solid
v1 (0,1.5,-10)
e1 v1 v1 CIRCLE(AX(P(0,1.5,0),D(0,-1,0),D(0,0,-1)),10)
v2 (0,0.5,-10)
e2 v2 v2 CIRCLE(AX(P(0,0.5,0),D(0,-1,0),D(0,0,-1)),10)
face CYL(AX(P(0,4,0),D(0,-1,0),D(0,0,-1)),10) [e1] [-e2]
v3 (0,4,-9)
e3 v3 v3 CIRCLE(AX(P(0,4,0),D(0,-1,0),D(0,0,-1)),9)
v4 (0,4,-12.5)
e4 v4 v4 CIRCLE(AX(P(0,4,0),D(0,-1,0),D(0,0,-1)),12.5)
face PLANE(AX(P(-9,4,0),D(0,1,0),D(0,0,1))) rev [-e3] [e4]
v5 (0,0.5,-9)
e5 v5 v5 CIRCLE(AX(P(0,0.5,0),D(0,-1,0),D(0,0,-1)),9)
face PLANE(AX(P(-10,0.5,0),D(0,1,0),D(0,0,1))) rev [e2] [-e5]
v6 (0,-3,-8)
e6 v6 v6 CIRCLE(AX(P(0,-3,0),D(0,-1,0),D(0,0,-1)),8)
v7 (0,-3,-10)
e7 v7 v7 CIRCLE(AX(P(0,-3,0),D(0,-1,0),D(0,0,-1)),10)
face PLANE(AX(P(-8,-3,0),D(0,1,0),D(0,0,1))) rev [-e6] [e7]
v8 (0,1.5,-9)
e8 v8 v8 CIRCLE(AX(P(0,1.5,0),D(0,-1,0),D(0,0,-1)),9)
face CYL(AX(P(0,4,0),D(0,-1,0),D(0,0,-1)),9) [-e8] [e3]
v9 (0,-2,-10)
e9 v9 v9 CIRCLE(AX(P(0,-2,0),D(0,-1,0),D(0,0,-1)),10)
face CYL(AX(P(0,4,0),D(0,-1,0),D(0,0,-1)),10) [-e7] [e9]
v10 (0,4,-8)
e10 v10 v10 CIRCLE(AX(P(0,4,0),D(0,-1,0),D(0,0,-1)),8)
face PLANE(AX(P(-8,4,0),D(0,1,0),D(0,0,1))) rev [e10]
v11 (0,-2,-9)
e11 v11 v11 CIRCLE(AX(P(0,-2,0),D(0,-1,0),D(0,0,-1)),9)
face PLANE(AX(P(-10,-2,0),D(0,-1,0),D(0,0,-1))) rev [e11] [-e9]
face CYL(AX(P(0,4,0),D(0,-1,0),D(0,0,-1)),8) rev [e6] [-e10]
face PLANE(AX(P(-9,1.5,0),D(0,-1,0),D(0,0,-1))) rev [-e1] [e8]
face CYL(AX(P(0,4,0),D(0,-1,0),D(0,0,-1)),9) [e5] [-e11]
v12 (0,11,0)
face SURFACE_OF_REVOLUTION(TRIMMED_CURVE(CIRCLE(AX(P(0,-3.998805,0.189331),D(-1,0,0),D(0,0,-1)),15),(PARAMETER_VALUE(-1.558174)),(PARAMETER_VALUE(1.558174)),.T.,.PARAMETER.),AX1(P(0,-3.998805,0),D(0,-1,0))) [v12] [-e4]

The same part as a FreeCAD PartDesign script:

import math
import FreeCAD as App
import Part
import Sketcher
Q = App.Units.Quantity

doc = App.newDocument("Part")
body = doc.addObject("PartDesign::Body", "Body")

# Sketch on XY plane
sketch1 = body.newObject("Sketcher::SketchObject", "Sketch")
sketch1.AttachmentSupport = (doc.getObject("XY_Plane"), [""])
sketch1.MapMode = "FlatFace"
sketch1.addGeometry(Part.LineSegment(App.Vector(-8, -3, 0), App.Vector(-8, 4, 0)), False)
sketch1.addGeometry(Part.LineSegment(App.Vector(-8, 4, 0), App.Vector(0, 4, 0)), False)
sketch1.addGeometry(Part.LineSegment(App.Vector(0, 4, 0), App.Vector(0, 11, 0)), False)
sketch1.addGeometry(Part.ArcOfCircle(Part.Circle(App.Vector(0.2, -4, 0), App.Vector(0, 0, 1), 15), math.radians(91), math.radians(148)), False)
sketch1.addGeometry(Part.LineSegment(App.Vector(-12.5, 4, 0), App.Vector(-9, 4, 0)), False)
sketch1.addGeometry(Part.LineSegment(App.Vector(-9, 4, 0), App.Vector(-9, 1.5, 0)), False)
sketch1.addGeometry(Part.LineSegment(App.Vector(-9, 1.5, 0), App.Vector(-10, 1.5, 0)), False)
sketch1.addGeometry(Part.LineSegment(App.Vector(-10, 1.5, 0), App.Vector(-10, 0.5, 0)), False)
sketch1.addGeometry(Part.LineSegment(App.Vector(-10, 0.5, 0), App.Vector(-9, 0.5, 0)), False)
sketch1.addGeometry(Part.LineSegment(App.Vector(-9, 0.5, 0), App.Vector(-9, -2, 0)), False)
sketch1.addGeometry(Part.LineSegment(App.Vector(-9, -2, 0), App.Vector(-10, -2, 0)), False)
sketch1.addGeometry(Part.LineSegment(App.Vector(-10, -2, 0), App.Vector(-10, -3, 0)), False)
sketch1.addGeometry(Part.LineSegment(App.Vector(-10, -3, 0), App.Vector(-8, -3, 0)), False)
sketch1.addConstraint(Sketcher.Constraint("Coincident", 0, 2, 1, 1))
sketch1.addConstraint(Sketcher.Constraint("Coincident", 1, 2, 2, 1))
sketch1.addConstraint(Sketcher.Constraint("Coincident", 2, 2, 3, 1))
sketch1.addConstraint(Sketcher.Constraint("Coincident", 3, 2, 4, 1))
sketch1.addConstraint(Sketcher.Constraint("Coincident", 4, 2, 5, 1))
sketch1.addConstraint(Sketcher.Constraint("Coincident", 5, 2, 6, 1))
sketch1.addConstraint(Sketcher.Constraint("Coincident", 6, 2, 7, 1))
sketch1.addConstraint(Sketcher.Constraint("Coincident", 7, 2, 8, 1))
sketch1.addConstraint(Sketcher.Constraint("Coincident", 8, 2, 9, 1))
sketch1.addConstraint(Sketcher.Constraint("Coincident", 9, 2, 10, 1))
sketch1.addConstraint(Sketcher.Constraint("Coincident", 10, 2, 11, 1))
sketch1.addConstraint(Sketcher.Constraint("Coincident", 11, 2, 12, 1))
sketch1.addConstraint(Sketcher.Constraint("Coincident", 12, 2, 0, 1))
sketch1.addConstraint(Sketcher.Constraint("Vertical", 0))
sketch1.addConstraint(Sketcher.Constraint("Horizontal", 1))
sketch1.addConstraint(Sketcher.Constraint("Vertical", 2))
sketch1.addConstraint(Sketcher.Constraint("Horizontal", 4))
sketch1.addConstraint(Sketcher.Constraint("Vertical", 5))
sketch1.addConstraint(Sketcher.Constraint("Horizontal", 6))
sketch1.addConstraint(Sketcher.Constraint("Vertical", 7))
sketch1.addConstraint(Sketcher.Constraint("Horizontal", 8))
sketch1.addConstraint(Sketcher.Constraint("Vertical", 9))
sketch1.addConstraint(Sketcher.Constraint("Horizontal", 10))
sketch1.addConstraint(Sketcher.Constraint("Vertical", 11))
sketch1.addConstraint(Sketcher.Constraint("Horizontal", 12))
sketch1.addConstraint(Sketcher.Constraint("PointOnObject", 1, 2, -2))
sketch1.addConstraint(Sketcher.Constraint("Horizontal", 1, 2, 3, 2))
sketch1.addConstraint(Sketcher.Constraint("Vertical", 5, 2, 8, 2))
sketch1.addConstraint(Sketcher.Constraint("Vertical", 7, 2, 10, 2))
sketch1.addConstraint(Sketcher.Constraint("Equal", 0, 2))
sketch1.addConstraint(Sketcher.Constraint("Equal", 10, 7))
sketch1.addConstraint(Sketcher.Constraint("Equal", 5, 9))
sketch1.addConstraint(Sketcher.Constraint("Equal", 7, 11))
sketch1.addConstraint(Sketcher.Constraint("Radius", 3, Q("15 mm")))
sketch1.addConstraint(Sketcher.Constraint("DistanceX", 1, 1, 1, 2, Q("8 mm")))
sketch1.addConstraint(Sketcher.Constraint("DistanceX", 6, 2, 6, 1, Q("1 mm")))
sketch1.addConstraint(Sketcher.Constraint("DistanceX", 12, 1, 12, 2, Q("2 mm")))
sketch1.addConstraint(Sketcher.Constraint("DistanceY", 0, 1, 0, 2, Q("7 mm")))
sketch1.addConstraint(Sketcher.Constraint("DistanceX", 4, 1, 4, 2, Q("3.5 mm")))
sketch1.addConstraint(Sketcher.Constraint("DistanceY", -1, 1, 0, 2, Q("4 mm")))
revolution = body.newObject("PartDesign::Revolution", "Revolution")
revolution.Profile = sketch1
revolution.ReferenceAxis = (sketch1, ["V_Axis"])
revolution.Angle = 360

doc.recompute()
